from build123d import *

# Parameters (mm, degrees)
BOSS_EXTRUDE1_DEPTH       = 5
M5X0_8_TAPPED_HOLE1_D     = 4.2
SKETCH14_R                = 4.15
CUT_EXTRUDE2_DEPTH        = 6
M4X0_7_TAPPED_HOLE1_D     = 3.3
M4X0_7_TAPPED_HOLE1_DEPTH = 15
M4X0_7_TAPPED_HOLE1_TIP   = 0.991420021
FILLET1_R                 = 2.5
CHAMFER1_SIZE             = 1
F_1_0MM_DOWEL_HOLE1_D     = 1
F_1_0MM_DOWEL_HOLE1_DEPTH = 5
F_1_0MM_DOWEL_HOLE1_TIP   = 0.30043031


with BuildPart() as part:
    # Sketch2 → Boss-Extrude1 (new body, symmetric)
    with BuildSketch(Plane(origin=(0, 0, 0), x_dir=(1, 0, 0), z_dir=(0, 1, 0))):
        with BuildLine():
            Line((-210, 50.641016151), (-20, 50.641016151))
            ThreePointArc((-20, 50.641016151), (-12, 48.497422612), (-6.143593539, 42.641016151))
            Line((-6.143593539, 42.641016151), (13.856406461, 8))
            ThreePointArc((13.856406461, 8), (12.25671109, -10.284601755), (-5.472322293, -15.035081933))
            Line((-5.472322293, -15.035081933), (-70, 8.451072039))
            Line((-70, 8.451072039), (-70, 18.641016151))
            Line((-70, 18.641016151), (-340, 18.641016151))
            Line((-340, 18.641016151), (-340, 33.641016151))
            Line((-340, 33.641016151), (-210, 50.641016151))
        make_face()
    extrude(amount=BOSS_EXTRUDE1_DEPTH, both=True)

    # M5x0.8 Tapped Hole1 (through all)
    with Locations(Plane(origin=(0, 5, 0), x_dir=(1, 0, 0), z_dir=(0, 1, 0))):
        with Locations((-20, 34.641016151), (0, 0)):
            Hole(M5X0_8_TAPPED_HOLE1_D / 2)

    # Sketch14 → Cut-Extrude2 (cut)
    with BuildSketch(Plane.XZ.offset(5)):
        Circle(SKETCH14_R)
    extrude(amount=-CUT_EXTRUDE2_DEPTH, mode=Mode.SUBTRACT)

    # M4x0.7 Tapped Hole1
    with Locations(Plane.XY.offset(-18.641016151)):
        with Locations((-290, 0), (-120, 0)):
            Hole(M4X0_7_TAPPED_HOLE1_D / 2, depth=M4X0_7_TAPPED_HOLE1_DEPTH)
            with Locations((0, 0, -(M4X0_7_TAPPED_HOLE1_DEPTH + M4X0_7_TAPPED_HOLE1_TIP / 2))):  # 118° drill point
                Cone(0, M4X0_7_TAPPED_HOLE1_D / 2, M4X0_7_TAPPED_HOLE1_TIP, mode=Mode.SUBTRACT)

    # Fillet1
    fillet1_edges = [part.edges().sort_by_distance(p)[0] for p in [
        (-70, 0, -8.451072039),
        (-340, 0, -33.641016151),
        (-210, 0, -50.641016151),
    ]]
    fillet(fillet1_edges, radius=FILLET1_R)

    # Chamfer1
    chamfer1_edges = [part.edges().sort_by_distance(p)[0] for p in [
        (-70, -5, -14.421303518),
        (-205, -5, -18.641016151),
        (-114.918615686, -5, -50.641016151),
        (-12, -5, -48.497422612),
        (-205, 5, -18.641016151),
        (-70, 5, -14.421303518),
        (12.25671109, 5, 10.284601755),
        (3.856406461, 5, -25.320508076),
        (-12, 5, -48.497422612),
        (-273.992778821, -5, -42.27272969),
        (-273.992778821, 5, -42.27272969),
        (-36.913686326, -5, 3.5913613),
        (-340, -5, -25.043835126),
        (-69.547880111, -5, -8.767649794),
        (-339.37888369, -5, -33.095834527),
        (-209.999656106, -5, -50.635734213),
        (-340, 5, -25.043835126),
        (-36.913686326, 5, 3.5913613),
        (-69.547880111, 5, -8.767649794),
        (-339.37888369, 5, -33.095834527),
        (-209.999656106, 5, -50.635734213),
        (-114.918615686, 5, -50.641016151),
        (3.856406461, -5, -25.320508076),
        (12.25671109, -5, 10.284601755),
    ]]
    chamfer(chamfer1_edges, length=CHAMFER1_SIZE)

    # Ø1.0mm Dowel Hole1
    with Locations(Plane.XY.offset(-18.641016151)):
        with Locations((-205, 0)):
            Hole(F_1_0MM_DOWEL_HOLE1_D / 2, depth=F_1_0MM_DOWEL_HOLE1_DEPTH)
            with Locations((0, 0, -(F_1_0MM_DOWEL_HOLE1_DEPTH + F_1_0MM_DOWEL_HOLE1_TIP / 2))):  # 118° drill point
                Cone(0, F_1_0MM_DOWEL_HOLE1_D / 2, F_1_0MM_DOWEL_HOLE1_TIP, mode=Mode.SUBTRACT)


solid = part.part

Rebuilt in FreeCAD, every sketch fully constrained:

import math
import FreeCAD as App
import Part
import Sketcher

V = App.Vector
Q = App.Units.Quantity


def edges_at(feature, points):
    """Names of the edges that pass closest to the given points."""
    edges = feature.Shape.Edges
    near = lambda p: min(range(len(edges)), key=lambda i: edges[i].distToShape(Part.Vertex(*p))[0])
    return sorted({f"Edge{near(p) + 1}" for p in points})

doc = App.newDocument("Part")
body = doc.addObject("PartDesign::Body", "Body")

# Sketch on XZ plane
sketch1 = body.newObject("Sketcher::SketchObject", "Sketch")
sketch1.AttachmentSupport = (doc.getObject("XZ_Plane"), [""])
sketch1.MapMode = "FlatFace"
sketch1.addGeometry(Part.LineSegment(V(-20, -51, 0), V(-210, -51, 0)), False)
sketch1.addGeometry(Part.LineSegment(V(-210, -51, 0), V(-340, -34, 0)), False)
sketch1.addGeometry(Part.LineSegment(V(-340, -34, 0), V(-340, -19, 0)), False)
sketch1.addGeometry(Part.LineSegment(V(-340, -19, 0), V(-70, -19, 0)), False)
sketch1.addGeometry(Part.LineSegment(V(-70, -19, 0), V(-70, -8, 0)), False)
sketch1.addGeometry(Part.LineSegment(V(-70, -8, 0), V(-5, 15, 0)), False)
sketch1.addGeometry(Part.ArcOfCircle(Part.Circle(V(0, 0, 0), V(0, 0, 1), 16), math.radians(-30), math.radians(110)), False)
sketch1.addGeometry(Part.LineSegment(V(14, -8, 0), V(-6, -43, 0)), False)
sketch1.addGeometry(Part.ArcOfCircle(Part.Circle(V(-20, -35, 0), V(0, 0, 1), 16), math.radians(-90), math.radians(-30)), False)
sketch1.addConstraint(Sketcher.Constraint("Coincident", 0, 2, 1, 1))
sketch1.addConstraint(Sketcher.Constraint("Coincident", 1, 2, 2, 1))
sketch1.addConstraint(Sketcher.Constraint("Coincident", 2, 2, 3, 1))
sketch1.addConstraint(Sketcher.Constraint("Coincident", 3, 2, 4, 1))
sketch1.addConstraint(Sketcher.Constraint("Coincident", 4, 2, 5, 1))
sketch1.addConstraint(Sketcher.Constraint("Tangent", 5, 2, 6, 2))
sketch1.addConstraint(Sketcher.Constraint("Tangent", 6, 1, 7, 1))
sketch1.addConstraint(Sketcher.Constraint("Tangent", 7, 2, 8, 2))
sketch1.addConstraint(Sketcher.Constraint("Tangent", 8, 1, 0, 1))
sketch1.addConstraint(Sketcher.Constraint("Horizontal", 0))
sketch1.addConstraint(Sketcher.Constraint("Vertical", 2))
sketch1.addConstraint(Sketcher.Constraint("Horizontal", 3))
sketch1.addConstraint(Sketcher.Constraint("Vertical", 4))
sketch1.addConstraint(Sketcher.Constraint("Coincident", 6, 3, -1, 1))
sketch1.addConstraint(Sketcher.Constraint("Equal", 6, 8))
sketch1.addConstraint(Sketcher.Constraint("Radius", 6, Q("16 mm")))
sketch1.addConstraint(Sketcher.Constraint("DistanceX", 0, 2, 0, 1, Q("190 mm")))
sketch1.addConstraint(Sketcher.Constraint("DistanceX", 3, 1, 3, 2, Q("270 mm")))
sketch1.addConstraint(Sketcher.Constraint("DistanceY", 2, 1, 2, 2, Q("15 mm")))
sketch1.addConstraint(Sketcher.Constraint("Angle", 5, Q("20 deg")))
sketch1.addConstraint(Sketcher.Constraint("Angle", 7, Q("-120 deg")))
sketch1.addConstraint(Sketcher.Constraint("Distance", 7, Q("40 mm")))
sketch1.addConstraint(Sketcher.Constraint("DistanceX", 1, 2, -1, 1, Q("340 mm")))
sketch1.addConstraint(Sketcher.Constraint("DistanceY", 0, 2, 1, 2, Q("17 mm")))
pad1 = body.newObject("PartDesign::Pad", "Pad")
pad1.Profile = sketch1
pad1.Length = 10
pad1.Midplane = True

# Sketch on XZ plane
sketch2 = body.newObject("Sketcher::SketchObject", "Sketch001")
sketch2.AttachmentSupport = (doc.getObject("XZ_Plane"), [""])
sketch2.MapMode = "FlatFace"
sketch2.AttachmentOffset = App.Placement(V(0, 0, -5), App.Rotation())
sketch2.addGeometry(Part.Circle(V(-20, -34.6, 0), V(0, 0, 1), 2.1), False)
sketch2.addGeometry(Part.Circle(V(0, 0, 0), V(0, 0, 1), 2.1), False)
sketch2.addConstraint(Sketcher.Constraint("Coincident", 1, 3, -1, 1))
sketch2.addConstraint(Sketcher.Constraint("Equal", 0, 1))
sketch2.addConstraint(Sketcher.Constraint("Diameter", 0, Q("4.2 mm")))
sketch2.addConstraint(Sketcher.Constraint("DistanceX", 0, 3, -1, 1, Q("20 mm")))
sketch2.addConstraint(Sketcher.Constraint("DistanceY", 0, 3, -1, 1, Q("34.641016 mm")))
doc.recompute()
hole = body.newObject("PartDesign::Hole", "Hole")
hole.Profile = sketch2
hole.ThreadType = "None"
hole.Diameter = 4.2
hole.DepthType = "ThroughAll"
hole.Reversed = True

# Sketch on XZ plane
sketch3 = body.newObject("Sketcher::SketchObject", "Sketch002")
sketch3.AttachmentSupport = (doc.getObject("XZ_Plane"), [""])
sketch3.MapMode = "FlatFace"
sketch3.AttachmentOffset = App.Placement(V(0, 0, 5), App.Rotation())
sketch3.addGeometry(Part.Circle(V(0, 0, 0), V(0, 0, 1), 4.2), False)
sketch3.addConstraint(Sketcher.Constraint("Coincident", 0, 3, -1, 1))
sketch3.addConstraint(Sketcher.Constraint("Diameter", 0, Q("8.3 mm")))
pocket1 = body.newObject("PartDesign::Pocket", "Pocket")
pocket1.Profile = sketch3
pocket1.Length = 6

# Sketch on XY plane
sketch4 = body.newObject("Sketcher::SketchObject", "Sketch003")
sketch4.AttachmentSupport = (doc.getObject("XY_Plane"), [""])
sketch4.MapMode = "FlatFace"
sketch4.AttachmentOffset = App.Placement(V(0, 0, -18.641016), App.Rotation())
sketch4.addGeometry(Part.Circle(V(-290, 0, 0), V(0, 0, 1), 1.6), False)
sketch4.addGeometry(Part.Circle(V(-120, 0, 0), V(0, 0, 1), 1.6), False)
sketch4.addConstraint(Sketcher.Constraint("Equal", 0, 1))
sketch4.addConstraint(Sketcher.Constraint("PointOnObject", 0, 3, -1))
sketch4.addConstraint(Sketcher.Constraint("PointOnObject", 1, 3, -1))
sketch4.addConstraint(Sketcher.Constraint("Diameter", 0, Q("3.3 mm")))
sketch4.addConstraint(Sketcher.Constraint("DistanceX", 0, 3, -1, 1, Q("290 mm")))
sketch4.addConstraint(Sketcher.Constraint("DistanceX", 1, 3, -1, 1, Q("120 mm")))
doc.recompute()
hole2 = body.newObject("PartDesign::Hole", "Hole001")
hole2.Profile = sketch4
hole2.ThreadType = "None"
hole2.Diameter = 3.3
hole2.DepthType = "Dimension"
hole2.Depth = 15
hole2.DrillPoint = "Angled"
hole2.DrillPointAngle = 118
doc.recompute()

fillet = body.newObject("PartDesign::Fillet", "Fillet")
fillet.Base = (hole2, edges_at(hole2, [(-70, 0, -8.451), (-340, 0, -33.641), (-210, 0, -50.641)]))
fillet.Radius = 2.5
doc.recompute()

chamfer = body.newObject("PartDesign::Chamfer", "Chamfer")
chamfer.Base = (fillet, edges_at(fillet, [
    (-70, -5, -14.421),
    (-205, -5, -18.641),
    (-114.919, -5, -50.641),
    (-12, -5, -48.497),
    (-205, 5, -18.641),
    (-70, 5, -14.421),
    (12.257, 5, 10.285),
    (3.856, 5, -25.321),
    (-12, 5, -48.497),
    (-273.993, -5, -42.273),
    (-273.993, 5, -42.273),
    (-36.914, -5, 3.591),
    (-340, -5, -25.044),
    (-69.548, -5, -8.768),
    (-339.379, -5, -33.096),
    (-210, -5, -50.636),
    (-340, 5, -25.044),
    (-36.914, 5, 3.591),
    (-69.548, 5, -8.768),
    (-339.379, 5, -33.096),
    (-210, 5, -50.636),
    (-114.919, 5, -50.641),
    (3.856, -5, -25.321),
    (12.257, -5, 10.285),
]))
chamfer.Size = 1

# Sketch on XY plane
sketch5 = body.newObject("Sketcher::SketchObject", "Sketch004")
sketch5.AttachmentSupport = (doc.getObject("XY_Plane"), [""])
sketch5.MapMode = "FlatFace"
sketch5.AttachmentOffset = App.Placement(V(0, 0, -18.641016), App.Rotation())
sketch5.addGeometry(Part.Circle(V(-205, 0, 0), V(0, 0, 1), 0.5), False)
sketch5.addConstraint(Sketcher.Constraint("PointOnObject", 0, 3, -1))
sketch5.addConstraint(Sketcher.Constraint("Diameter", 0, Q("1 mm")))
sketch5.addConstraint(Sketcher.Constraint("DistanceX", 0, 3, -1, 1, Q("205 mm")))
doc.recompute()
hole3 = body.newObject("PartDesign::Hole", "Hole002")
hole3.Profile = sketch5
hole3.ThreadType = "None"
hole3.Diameter = 1
hole3.DepthType = "Dimension"
hole3.Depth = 5
hole3.DrillPoint = "Angled"
hole3.DrillPointAngle = 118

doc.recompute()
